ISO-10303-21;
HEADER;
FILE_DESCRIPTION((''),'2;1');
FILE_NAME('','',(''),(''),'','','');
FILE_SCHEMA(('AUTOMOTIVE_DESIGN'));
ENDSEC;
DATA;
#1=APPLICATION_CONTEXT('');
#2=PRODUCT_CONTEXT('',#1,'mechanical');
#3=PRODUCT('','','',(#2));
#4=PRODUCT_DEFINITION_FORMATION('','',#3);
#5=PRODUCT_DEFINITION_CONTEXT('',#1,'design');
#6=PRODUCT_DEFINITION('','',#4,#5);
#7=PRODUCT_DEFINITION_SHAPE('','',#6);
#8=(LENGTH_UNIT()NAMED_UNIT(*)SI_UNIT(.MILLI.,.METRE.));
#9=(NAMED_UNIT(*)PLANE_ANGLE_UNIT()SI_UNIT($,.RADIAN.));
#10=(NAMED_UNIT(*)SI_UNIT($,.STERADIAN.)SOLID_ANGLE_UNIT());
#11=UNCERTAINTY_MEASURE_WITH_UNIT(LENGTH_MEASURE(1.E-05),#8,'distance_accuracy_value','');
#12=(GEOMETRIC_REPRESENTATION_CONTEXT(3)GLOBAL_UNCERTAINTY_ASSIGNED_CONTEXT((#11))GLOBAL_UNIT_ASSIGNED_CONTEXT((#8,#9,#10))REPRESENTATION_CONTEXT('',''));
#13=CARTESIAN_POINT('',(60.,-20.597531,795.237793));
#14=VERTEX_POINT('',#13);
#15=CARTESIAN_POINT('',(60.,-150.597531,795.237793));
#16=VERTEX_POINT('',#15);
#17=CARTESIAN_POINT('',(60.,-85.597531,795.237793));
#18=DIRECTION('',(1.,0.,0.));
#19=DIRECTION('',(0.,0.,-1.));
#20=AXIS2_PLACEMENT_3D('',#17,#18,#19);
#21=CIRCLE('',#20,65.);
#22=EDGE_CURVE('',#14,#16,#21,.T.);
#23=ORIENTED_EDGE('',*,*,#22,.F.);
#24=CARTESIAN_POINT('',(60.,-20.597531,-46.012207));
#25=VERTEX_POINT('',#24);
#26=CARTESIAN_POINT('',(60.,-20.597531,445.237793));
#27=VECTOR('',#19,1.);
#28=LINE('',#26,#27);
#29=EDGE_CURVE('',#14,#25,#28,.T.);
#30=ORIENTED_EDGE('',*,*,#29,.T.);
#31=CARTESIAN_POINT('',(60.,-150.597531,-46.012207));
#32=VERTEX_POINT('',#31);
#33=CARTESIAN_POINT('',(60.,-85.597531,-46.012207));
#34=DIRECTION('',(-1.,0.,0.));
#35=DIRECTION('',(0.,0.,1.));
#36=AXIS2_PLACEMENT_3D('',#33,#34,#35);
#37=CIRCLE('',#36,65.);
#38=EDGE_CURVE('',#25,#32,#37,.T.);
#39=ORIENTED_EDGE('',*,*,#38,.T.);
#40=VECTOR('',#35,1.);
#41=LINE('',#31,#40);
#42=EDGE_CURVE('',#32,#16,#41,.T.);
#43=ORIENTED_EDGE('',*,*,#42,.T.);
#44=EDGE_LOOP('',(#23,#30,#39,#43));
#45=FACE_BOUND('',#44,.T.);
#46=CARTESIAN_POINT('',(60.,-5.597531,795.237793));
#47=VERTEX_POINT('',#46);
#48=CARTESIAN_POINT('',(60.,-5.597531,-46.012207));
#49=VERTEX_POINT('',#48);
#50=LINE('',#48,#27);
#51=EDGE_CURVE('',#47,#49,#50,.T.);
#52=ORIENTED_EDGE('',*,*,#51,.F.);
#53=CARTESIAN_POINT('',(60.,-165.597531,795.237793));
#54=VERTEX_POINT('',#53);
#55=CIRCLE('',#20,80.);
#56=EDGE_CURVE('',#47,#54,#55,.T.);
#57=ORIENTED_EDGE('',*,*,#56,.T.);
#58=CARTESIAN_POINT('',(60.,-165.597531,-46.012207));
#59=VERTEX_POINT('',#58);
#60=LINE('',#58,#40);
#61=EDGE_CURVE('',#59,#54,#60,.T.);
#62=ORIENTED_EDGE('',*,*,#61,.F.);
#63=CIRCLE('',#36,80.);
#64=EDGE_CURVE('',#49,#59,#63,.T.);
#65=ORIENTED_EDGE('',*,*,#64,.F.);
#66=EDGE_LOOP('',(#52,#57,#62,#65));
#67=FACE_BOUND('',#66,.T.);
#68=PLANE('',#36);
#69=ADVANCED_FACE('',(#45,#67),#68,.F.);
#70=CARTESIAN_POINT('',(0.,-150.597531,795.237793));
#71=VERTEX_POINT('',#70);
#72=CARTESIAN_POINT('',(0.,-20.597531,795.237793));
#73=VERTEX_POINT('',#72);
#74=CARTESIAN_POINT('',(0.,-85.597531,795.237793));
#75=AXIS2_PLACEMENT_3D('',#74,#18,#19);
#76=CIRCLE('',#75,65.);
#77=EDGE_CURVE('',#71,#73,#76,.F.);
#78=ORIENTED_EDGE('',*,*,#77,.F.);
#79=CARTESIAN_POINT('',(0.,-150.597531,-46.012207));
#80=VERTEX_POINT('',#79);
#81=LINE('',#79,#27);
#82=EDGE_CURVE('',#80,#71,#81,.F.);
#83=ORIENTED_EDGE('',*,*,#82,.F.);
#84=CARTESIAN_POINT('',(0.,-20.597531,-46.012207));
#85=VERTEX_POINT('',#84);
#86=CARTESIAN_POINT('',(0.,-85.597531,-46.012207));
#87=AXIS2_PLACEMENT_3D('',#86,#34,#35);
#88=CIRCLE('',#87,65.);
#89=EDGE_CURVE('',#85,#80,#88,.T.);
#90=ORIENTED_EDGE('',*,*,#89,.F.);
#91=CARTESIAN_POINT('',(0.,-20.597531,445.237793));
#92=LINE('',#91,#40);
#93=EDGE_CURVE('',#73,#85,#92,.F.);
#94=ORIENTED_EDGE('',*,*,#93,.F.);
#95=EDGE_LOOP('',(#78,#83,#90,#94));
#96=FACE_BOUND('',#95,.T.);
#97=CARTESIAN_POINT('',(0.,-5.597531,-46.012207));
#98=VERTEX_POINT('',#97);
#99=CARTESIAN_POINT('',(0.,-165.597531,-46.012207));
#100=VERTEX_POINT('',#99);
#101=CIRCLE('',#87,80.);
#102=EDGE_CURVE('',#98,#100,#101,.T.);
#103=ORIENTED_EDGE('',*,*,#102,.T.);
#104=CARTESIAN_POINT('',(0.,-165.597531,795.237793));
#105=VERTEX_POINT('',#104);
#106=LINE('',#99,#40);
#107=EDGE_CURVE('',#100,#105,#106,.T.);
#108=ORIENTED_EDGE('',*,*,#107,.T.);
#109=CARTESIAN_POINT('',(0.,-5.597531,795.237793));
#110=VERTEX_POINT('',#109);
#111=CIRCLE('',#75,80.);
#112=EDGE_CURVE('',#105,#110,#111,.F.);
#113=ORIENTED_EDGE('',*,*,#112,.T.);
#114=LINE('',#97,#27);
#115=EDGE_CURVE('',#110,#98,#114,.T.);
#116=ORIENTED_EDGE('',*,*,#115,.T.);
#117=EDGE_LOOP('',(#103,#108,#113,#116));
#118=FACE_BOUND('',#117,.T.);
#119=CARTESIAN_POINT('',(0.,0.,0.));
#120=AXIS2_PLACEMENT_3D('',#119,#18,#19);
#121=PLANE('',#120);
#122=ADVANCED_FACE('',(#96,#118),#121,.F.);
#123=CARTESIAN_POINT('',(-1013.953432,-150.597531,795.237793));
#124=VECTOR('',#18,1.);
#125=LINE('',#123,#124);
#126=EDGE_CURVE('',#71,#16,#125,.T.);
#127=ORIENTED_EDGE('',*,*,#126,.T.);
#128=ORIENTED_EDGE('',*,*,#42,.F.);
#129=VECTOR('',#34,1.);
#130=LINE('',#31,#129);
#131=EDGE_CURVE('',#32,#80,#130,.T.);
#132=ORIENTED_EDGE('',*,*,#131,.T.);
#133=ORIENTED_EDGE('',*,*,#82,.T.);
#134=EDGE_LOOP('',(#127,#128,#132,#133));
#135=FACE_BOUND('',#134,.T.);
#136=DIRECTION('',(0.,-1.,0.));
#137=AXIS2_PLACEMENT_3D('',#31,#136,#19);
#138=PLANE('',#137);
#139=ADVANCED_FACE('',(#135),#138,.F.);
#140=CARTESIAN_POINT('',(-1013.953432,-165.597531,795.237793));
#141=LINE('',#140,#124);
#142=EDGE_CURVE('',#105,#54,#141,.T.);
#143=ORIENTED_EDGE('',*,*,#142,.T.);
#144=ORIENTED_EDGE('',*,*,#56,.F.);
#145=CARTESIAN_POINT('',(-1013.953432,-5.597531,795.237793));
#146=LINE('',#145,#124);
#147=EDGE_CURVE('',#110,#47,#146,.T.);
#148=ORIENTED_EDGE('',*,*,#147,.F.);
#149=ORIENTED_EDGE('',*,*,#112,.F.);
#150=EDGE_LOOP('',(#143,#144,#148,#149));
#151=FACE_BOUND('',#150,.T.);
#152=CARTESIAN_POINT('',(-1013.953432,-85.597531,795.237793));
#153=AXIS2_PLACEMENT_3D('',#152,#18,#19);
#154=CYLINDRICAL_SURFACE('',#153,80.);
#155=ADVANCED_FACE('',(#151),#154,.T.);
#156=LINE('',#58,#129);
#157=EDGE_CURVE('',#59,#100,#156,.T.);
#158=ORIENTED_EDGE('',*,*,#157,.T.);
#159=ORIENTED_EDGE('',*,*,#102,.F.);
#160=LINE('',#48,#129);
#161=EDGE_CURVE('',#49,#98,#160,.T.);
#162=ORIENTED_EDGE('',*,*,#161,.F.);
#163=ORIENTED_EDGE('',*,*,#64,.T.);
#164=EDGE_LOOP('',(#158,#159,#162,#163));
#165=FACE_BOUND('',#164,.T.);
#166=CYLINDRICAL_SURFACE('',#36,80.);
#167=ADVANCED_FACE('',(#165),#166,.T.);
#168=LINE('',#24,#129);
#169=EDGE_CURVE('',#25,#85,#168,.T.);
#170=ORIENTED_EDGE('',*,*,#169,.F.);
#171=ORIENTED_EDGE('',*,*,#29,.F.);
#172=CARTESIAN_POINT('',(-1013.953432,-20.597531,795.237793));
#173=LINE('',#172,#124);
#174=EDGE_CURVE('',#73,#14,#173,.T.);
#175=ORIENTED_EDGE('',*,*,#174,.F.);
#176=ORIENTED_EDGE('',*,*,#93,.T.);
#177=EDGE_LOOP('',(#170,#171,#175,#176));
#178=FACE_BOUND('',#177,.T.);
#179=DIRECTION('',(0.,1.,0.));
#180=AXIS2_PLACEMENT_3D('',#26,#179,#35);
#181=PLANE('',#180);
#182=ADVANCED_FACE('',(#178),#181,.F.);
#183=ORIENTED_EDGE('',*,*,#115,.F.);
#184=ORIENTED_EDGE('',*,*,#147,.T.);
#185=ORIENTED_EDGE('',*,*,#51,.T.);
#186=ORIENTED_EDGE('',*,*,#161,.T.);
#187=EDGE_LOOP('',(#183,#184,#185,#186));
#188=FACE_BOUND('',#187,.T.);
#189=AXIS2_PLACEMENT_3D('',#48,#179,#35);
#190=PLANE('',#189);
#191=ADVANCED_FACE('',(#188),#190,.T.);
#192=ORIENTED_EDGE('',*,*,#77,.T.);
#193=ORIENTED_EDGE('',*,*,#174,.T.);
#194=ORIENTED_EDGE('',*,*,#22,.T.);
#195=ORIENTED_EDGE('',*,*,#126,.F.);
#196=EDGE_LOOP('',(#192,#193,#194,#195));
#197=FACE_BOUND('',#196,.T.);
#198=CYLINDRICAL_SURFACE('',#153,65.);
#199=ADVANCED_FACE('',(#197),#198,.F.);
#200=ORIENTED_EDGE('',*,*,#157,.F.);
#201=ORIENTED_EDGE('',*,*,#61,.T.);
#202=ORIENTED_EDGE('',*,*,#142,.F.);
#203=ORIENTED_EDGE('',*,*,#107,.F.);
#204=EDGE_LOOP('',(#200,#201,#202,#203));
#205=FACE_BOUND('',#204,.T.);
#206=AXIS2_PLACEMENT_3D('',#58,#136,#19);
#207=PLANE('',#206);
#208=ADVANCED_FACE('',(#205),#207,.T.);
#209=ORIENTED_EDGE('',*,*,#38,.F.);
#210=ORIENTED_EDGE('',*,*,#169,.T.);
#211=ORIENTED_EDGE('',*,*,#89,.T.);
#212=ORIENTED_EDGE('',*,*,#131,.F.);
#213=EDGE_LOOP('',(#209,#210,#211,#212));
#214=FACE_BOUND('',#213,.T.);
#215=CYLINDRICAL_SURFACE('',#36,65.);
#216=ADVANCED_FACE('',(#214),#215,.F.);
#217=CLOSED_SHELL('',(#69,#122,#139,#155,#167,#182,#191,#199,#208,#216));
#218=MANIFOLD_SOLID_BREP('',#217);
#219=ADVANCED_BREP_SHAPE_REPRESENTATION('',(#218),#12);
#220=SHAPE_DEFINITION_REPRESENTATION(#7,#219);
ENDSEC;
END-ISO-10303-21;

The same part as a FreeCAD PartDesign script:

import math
import FreeCAD as App
import Part
import Sketcher

V = App.Vector
Q = App.Units.Quantity

doc = App.newDocument("Part")
body = doc.addObject("PartDesign::Body", "Body")

# Sketch on YZ plane
sketch1 = body.newObject("Sketcher::SketchObject", "Sketch")
sketch1.AttachmentSupport = (doc.getObject("YZ_Plane"), [""])
sketch1.MapMode = "FlatFace"
sketch1.addGeometry(Part.Circle(V(0, 0, 0), V(0, 0, 1), 19), False)
sketch1.addConstraint([
    Sketcher.Constraint("Coincident", 0, 3, -1, 1),
    Sketcher.Constraint("Diameter", 0, Q("37.082633 mm")),
])
pad1 = body.newObject("PartDesign::Pad", "Pad")
pad1.Profile = sketch1
pad1.Length = 10

# Sketch on YZ plane
sketch2 = body.newObject("Sketcher::SketchObject", "Sketch001")
sketch2.AttachmentSupport = (doc.getObject("YZ_Plane"), [""])
sketch2.MapMode = "FlatFace"
sketch2.addGeometry([
    Part.LineSegment(V(-6, 445, 0), V(-6, -46, 0)),  # 0
    Part.ArcOfCircle(Part.Circle(V(-86, -46, 0), V(0, 0, 1), 80), math.radians(180), math.radians(360)),  # 1
    Part.LineSegment(V(-166, -46, 0), V(-166, 445, 0)),  # 2
    Part.ArcOfCircle(Part.Circle(V(-86, 445, 0), V(0, 0, 1), 80), math.radians(0), math.radians(180)),  # 3
    Part.Circle(V(-86, 445, 0), V(0, 0, 1), 65),  # 4
    Part.Circle(V(-86, -46, 0), V(0, 0, 1), 65),  # 5
], False)
sketch2.addConstraint([
    Sketcher.Constraint("Tangent", 0, 2, 1, 2),
    Sketcher.Constraint("Tangent", 1, 1, 2, 1),
    Sketcher.Constraint("Tangent", 2, 2, 3, 2),
    Sketcher.Constraint("Tangent", 3, 1, 0, 1),
    Sketcher.Constraint("Vertical", 0),
    Sketcher.Constraint("Vertical", 2),
    Sketcher.Constraint("Coincident", 4, 3, 3, 3),
    Sketcher.Constraint("Coincident", 5, 3, 1, 3),
    Sketcher.Constraint("Equal", 4, 5),
    Sketcher.Constraint("Diameter", 4, Q("130 mm")),
    Sketcher.Constraint("Radius", 1, Q("80 mm")),
    Sketcher.Constraint("DistanceY", 0, 2, 0, 1, Q("491.25 mm")),
    Sketcher.Constraint("DistanceX", 1, 3, -1, 1, Q("85.597531 mm")),
    Sketcher.Constraint("DistanceY", 1, 3, -1, 1, Q("46.012207 mm")),
])
pad2 = body.newObject("PartDesign::Pad", "Pad001")
pad2.Profile = sketch2
pad2.Length = 60

# Sketch on YZ plane
sketch3 = body.newObject("Sketcher::SketchObject", "Sketch002")
sketch3.AttachmentSupport = (doc.getObject("YZ_Plane"), [""])
sketch3.MapMode = "FlatFace"
sketch3.addGeometry([
    Part.LineSegment(V(-6, -32, 0), V(-6, 45, 0)),
    Part.LineSegment(V(-6, 45, 0), V(40, 37, 0)),
    Part.LineSegment(V(40, 37, 0), V(40, -16, 0)),
    Part.LineSegment(V(40, -16, 0), V(-6, -32, 0)),
], False)
sketch3.addConstraint([
    Sketcher.Constraint("Coincident", 0, 2, 1, 1),
    Sketcher.Constraint("Coincident", 1, 2, 2, 1),
    Sketcher.Constraint("Coincident", 2, 2, 3, 1),
    Sketcher.Constraint("Coincident", 3, 2, 0, 1),
    Sketcher.Constraint("Vertical", 0),
    Sketcher.Constraint("Vertical", 2),
    Sketcher.Constraint("Distance", 3, Q("47.86955 mm")),
    Sketcher.Constraint("DistanceY", 0, 1, 0, 2, Q("77.524177 mm")),
    Sketcher.Constraint("DistanceY", 2, 2, 2, 1, Q("53.219783 mm")),
    Sketcher.Constraint("DistanceX", 0, 2, -1, 1, Q("5.597531 mm")),
    Sketcher.Constraint("DistanceY", -1, 1, 0, 2, Q("45.252231 mm")),
    Sketcher.Constraint("DistanceY", 3, 2, 2, 2, Q("15.851841 mm")),
])
pocket1 = body.newObject("PartDesign::Pocket", "Pocket")
pocket1.Profile = sketch3
pocket1.Type = "ThroughAll"
pocket1.Midplane = True

# Sketch on YZ plane
sketch4 = body.newObject("Sketcher::SketchObject", "Sketch003")
sketch4.AttachmentSupport = (doc.getObject("YZ_Plane"), [""])
sketch4.MapMode = "FlatFace"
sketch4.addGeometry([
    Part.LineSegment(V(-21, -46, 0), V(-151, -46, 0)),
    Part.LineSegment(V(-151, -46, 0), V(-151, 445, 0)),
    Part.LineSegment(V(-151, 445, 0), V(-21, 445, 0)),
    Part.LineSegment(V(-21, 445, 0), V(-21, -46, 0)),
], False)
sketch4.addConstraint([
    Sketcher.Constraint("Coincident", 0, 2, 1, 1),
    Sketcher.Constraint("Coincident", 1, 2, 2, 1),
    Sketcher.Constraint("Coincident", 2, 2, 3, 1),
    Sketcher.Constraint("Coincident", 3, 2, 0, 1),
    Sketcher.Constraint("Horizontal", 0),
    Sketcher.Constraint("Vertical", 1),
    Sketcher.Constraint("Horizontal", 2),
    Sketcher.Constraint("Vertical", 3),
    Sketcher.Constraint("DistanceX", 0, 2, 0, 1, Q("130 mm")),
    Sketcher.Constraint("DistanceY", 1, 1, 1, 2, Q("491.25 mm")),
    Sketcher.Constraint("DistanceX", 0, 2, -1, 1, Q("150.597531 mm")),
    Sketcher.Constraint("DistanceY", 0, 2, -1, 1, Q("46.012207 mm")),
])
pocket2 = body.newObject("PartDesign::Pocket", "Pocket001")
pocket2.Profile = sketch4
pocket2.Type = "ThroughAll"
pocket2.Midplane = True

# Sketch on YZ plane
sketch5 = body.newObject("Sketcher::SketchObject", "Sketch004")
sketch5.AttachmentSupport = (doc.getObject("YZ_Plane"), [""])
sketch5.MapMode = "FlatFace"
sketch5.addGeometry([
    Part.LineSegment(V(-6, -46, 0), V(-6, 795, 0)),  # 0
    Part.ArcOfCircle(Part.Circle(V(-86, 795, 0), V(0, 0, 1), 80), math.radians(0), math.radians(180)),  # 1
    Part.LineSegment(V(-166, 795, 0), V(-166, -46, 0)),  # 2
    Part.ArcOfCircle(Part.Circle(V(-86, -46, 0), V(0, 0, 1), 80), math.radians(180), math.radians(360)),  # 3
    Part.LineSegment(V(-21, 795, 0), V(-21, -46, 0)),  # 4
    Part.ArcOfCircle(Part.Circle(V(-86, -46, 0), V(0, 0, 1), 65), math.radians(180), math.radians(360)),  # 5
    Part.LineSegment(V(-151, -46, 0), V(-151, 795, 0)),  # 6
    Part.ArcOfCircle(Part.Circle(V(-86, 795, 0), V(0, 0, 1), 65), math.radians(0), math.radians(180)),  # 7
], False)
sketch5.addConstraint([
    Sketcher.Constraint("Tangent", 0, 2, 1, 1),
    Sketcher.Constraint("Tangent", 1, 2, 2, 1),
    Sketcher.Constraint("Tangent", 2, 2, 3, 1),
    Sketcher.Constraint("Tangent", 3, 2, 0, 1),
    Sketcher.Constraint("Tangent", 4, 2, 5, 2),
    Sketcher.Constraint("Tangent", 5, 1, 6, 1),
    Sketcher.Constraint("Tangent", 6, 2, 7, 2),
    Sketcher.Constraint("Tangent", 7, 1, 4, 1),
    Sketcher.Constraint("Vertical", 0),
    Sketcher.Constraint("Vertical", 2),
    Sketcher.Constraint("Vertical", 4),
    Sketcher.Constraint("Vertical", 6),
    Sketcher.Constraint("Coincident", 5, 3, 3, 3),
    Sketcher.Constraint("Horizontal", 7, 3, 0, 2),
    Sketcher.Constraint("Radius", 1, Q("80 mm")),
    Sketcher.Constraint("Radius", 5, Q("65 mm")),
    Sketcher.Constraint("DistanceY", 0, 1, 0, 2, Q("841.25 mm")),
    Sketcher.Constraint("DistanceX", 1, 3, -1, 1, Q("85.597531 mm")),
    Sketcher.Constraint("DistanceY", -1, 1, 1, 3, Q("795.237793 mm")),
])
pad3 = body.newObject("PartDesign::Pad", "Pad002")
pad3.Profile = sketch5
pad3.Length = 60

# Sketch on YZ plane
sketch6 = body.newObject("Sketcher::SketchObject", "Sketch005")
sketch6.AttachmentSupport = (doc.getObject("YZ_Plane"), [""])
sketch6.MapMode = "FlatFace"
sketch6.AttachmentOffset = App.Placement(V(0, 0, 60), App.Rotation())
sketch6.addGeometry([
    Part.LineSegment(V(-21, 409, 0), V(-21, 548, 0)),
    Part.LineSegment(V(-21, 548, 0), V(-151, 544, 0)),
    Part.LineSegment(V(-151, 544, 0), V(-151, 409, 0)),
    Part.LineSegment(V(-151, 409, 0), V(-21, 409, 0)),
], False)
sketch6.addConstraint([
    Sketcher.Constraint("Coincident", 0, 2, 1, 1),
    Sketcher.Constraint("Coincident", 1, 2, 2, 1),
    Sketcher.Constraint("Coincident", 2, 2, 3, 1),
    Sketcher.Constraint("Coincident", 3, 2, 0, 1),
    Sketcher.Constraint("Vertical", 0),
    Sketcher.Constraint("Vertical", 2),
    Sketcher.Constraint("Horizontal", 3),
    Sketcher.Constraint("DistanceX", 3, 1, 3, 2, Q("130 mm")),
    Sketcher.Constraint("Distance", 1, Q("130.051069 mm")),
    Sketcher.Constraint("DistanceY", 0, 1, 0, 2, Q("138.623696 mm")),
    Sketcher.Constraint("DistanceX", 0, 2, -1, 1, Q("20.597531 mm")),
    Sketcher.Constraint("DistanceY", -1, 1, 2, 2, Q("408.942471 mm")),
])
pocket3 = body.newObject("PartDesign::Pocket", "Pocket002")
pocket3.Profile = sketch6
pocket3.Length = 229

doc.recompute()
